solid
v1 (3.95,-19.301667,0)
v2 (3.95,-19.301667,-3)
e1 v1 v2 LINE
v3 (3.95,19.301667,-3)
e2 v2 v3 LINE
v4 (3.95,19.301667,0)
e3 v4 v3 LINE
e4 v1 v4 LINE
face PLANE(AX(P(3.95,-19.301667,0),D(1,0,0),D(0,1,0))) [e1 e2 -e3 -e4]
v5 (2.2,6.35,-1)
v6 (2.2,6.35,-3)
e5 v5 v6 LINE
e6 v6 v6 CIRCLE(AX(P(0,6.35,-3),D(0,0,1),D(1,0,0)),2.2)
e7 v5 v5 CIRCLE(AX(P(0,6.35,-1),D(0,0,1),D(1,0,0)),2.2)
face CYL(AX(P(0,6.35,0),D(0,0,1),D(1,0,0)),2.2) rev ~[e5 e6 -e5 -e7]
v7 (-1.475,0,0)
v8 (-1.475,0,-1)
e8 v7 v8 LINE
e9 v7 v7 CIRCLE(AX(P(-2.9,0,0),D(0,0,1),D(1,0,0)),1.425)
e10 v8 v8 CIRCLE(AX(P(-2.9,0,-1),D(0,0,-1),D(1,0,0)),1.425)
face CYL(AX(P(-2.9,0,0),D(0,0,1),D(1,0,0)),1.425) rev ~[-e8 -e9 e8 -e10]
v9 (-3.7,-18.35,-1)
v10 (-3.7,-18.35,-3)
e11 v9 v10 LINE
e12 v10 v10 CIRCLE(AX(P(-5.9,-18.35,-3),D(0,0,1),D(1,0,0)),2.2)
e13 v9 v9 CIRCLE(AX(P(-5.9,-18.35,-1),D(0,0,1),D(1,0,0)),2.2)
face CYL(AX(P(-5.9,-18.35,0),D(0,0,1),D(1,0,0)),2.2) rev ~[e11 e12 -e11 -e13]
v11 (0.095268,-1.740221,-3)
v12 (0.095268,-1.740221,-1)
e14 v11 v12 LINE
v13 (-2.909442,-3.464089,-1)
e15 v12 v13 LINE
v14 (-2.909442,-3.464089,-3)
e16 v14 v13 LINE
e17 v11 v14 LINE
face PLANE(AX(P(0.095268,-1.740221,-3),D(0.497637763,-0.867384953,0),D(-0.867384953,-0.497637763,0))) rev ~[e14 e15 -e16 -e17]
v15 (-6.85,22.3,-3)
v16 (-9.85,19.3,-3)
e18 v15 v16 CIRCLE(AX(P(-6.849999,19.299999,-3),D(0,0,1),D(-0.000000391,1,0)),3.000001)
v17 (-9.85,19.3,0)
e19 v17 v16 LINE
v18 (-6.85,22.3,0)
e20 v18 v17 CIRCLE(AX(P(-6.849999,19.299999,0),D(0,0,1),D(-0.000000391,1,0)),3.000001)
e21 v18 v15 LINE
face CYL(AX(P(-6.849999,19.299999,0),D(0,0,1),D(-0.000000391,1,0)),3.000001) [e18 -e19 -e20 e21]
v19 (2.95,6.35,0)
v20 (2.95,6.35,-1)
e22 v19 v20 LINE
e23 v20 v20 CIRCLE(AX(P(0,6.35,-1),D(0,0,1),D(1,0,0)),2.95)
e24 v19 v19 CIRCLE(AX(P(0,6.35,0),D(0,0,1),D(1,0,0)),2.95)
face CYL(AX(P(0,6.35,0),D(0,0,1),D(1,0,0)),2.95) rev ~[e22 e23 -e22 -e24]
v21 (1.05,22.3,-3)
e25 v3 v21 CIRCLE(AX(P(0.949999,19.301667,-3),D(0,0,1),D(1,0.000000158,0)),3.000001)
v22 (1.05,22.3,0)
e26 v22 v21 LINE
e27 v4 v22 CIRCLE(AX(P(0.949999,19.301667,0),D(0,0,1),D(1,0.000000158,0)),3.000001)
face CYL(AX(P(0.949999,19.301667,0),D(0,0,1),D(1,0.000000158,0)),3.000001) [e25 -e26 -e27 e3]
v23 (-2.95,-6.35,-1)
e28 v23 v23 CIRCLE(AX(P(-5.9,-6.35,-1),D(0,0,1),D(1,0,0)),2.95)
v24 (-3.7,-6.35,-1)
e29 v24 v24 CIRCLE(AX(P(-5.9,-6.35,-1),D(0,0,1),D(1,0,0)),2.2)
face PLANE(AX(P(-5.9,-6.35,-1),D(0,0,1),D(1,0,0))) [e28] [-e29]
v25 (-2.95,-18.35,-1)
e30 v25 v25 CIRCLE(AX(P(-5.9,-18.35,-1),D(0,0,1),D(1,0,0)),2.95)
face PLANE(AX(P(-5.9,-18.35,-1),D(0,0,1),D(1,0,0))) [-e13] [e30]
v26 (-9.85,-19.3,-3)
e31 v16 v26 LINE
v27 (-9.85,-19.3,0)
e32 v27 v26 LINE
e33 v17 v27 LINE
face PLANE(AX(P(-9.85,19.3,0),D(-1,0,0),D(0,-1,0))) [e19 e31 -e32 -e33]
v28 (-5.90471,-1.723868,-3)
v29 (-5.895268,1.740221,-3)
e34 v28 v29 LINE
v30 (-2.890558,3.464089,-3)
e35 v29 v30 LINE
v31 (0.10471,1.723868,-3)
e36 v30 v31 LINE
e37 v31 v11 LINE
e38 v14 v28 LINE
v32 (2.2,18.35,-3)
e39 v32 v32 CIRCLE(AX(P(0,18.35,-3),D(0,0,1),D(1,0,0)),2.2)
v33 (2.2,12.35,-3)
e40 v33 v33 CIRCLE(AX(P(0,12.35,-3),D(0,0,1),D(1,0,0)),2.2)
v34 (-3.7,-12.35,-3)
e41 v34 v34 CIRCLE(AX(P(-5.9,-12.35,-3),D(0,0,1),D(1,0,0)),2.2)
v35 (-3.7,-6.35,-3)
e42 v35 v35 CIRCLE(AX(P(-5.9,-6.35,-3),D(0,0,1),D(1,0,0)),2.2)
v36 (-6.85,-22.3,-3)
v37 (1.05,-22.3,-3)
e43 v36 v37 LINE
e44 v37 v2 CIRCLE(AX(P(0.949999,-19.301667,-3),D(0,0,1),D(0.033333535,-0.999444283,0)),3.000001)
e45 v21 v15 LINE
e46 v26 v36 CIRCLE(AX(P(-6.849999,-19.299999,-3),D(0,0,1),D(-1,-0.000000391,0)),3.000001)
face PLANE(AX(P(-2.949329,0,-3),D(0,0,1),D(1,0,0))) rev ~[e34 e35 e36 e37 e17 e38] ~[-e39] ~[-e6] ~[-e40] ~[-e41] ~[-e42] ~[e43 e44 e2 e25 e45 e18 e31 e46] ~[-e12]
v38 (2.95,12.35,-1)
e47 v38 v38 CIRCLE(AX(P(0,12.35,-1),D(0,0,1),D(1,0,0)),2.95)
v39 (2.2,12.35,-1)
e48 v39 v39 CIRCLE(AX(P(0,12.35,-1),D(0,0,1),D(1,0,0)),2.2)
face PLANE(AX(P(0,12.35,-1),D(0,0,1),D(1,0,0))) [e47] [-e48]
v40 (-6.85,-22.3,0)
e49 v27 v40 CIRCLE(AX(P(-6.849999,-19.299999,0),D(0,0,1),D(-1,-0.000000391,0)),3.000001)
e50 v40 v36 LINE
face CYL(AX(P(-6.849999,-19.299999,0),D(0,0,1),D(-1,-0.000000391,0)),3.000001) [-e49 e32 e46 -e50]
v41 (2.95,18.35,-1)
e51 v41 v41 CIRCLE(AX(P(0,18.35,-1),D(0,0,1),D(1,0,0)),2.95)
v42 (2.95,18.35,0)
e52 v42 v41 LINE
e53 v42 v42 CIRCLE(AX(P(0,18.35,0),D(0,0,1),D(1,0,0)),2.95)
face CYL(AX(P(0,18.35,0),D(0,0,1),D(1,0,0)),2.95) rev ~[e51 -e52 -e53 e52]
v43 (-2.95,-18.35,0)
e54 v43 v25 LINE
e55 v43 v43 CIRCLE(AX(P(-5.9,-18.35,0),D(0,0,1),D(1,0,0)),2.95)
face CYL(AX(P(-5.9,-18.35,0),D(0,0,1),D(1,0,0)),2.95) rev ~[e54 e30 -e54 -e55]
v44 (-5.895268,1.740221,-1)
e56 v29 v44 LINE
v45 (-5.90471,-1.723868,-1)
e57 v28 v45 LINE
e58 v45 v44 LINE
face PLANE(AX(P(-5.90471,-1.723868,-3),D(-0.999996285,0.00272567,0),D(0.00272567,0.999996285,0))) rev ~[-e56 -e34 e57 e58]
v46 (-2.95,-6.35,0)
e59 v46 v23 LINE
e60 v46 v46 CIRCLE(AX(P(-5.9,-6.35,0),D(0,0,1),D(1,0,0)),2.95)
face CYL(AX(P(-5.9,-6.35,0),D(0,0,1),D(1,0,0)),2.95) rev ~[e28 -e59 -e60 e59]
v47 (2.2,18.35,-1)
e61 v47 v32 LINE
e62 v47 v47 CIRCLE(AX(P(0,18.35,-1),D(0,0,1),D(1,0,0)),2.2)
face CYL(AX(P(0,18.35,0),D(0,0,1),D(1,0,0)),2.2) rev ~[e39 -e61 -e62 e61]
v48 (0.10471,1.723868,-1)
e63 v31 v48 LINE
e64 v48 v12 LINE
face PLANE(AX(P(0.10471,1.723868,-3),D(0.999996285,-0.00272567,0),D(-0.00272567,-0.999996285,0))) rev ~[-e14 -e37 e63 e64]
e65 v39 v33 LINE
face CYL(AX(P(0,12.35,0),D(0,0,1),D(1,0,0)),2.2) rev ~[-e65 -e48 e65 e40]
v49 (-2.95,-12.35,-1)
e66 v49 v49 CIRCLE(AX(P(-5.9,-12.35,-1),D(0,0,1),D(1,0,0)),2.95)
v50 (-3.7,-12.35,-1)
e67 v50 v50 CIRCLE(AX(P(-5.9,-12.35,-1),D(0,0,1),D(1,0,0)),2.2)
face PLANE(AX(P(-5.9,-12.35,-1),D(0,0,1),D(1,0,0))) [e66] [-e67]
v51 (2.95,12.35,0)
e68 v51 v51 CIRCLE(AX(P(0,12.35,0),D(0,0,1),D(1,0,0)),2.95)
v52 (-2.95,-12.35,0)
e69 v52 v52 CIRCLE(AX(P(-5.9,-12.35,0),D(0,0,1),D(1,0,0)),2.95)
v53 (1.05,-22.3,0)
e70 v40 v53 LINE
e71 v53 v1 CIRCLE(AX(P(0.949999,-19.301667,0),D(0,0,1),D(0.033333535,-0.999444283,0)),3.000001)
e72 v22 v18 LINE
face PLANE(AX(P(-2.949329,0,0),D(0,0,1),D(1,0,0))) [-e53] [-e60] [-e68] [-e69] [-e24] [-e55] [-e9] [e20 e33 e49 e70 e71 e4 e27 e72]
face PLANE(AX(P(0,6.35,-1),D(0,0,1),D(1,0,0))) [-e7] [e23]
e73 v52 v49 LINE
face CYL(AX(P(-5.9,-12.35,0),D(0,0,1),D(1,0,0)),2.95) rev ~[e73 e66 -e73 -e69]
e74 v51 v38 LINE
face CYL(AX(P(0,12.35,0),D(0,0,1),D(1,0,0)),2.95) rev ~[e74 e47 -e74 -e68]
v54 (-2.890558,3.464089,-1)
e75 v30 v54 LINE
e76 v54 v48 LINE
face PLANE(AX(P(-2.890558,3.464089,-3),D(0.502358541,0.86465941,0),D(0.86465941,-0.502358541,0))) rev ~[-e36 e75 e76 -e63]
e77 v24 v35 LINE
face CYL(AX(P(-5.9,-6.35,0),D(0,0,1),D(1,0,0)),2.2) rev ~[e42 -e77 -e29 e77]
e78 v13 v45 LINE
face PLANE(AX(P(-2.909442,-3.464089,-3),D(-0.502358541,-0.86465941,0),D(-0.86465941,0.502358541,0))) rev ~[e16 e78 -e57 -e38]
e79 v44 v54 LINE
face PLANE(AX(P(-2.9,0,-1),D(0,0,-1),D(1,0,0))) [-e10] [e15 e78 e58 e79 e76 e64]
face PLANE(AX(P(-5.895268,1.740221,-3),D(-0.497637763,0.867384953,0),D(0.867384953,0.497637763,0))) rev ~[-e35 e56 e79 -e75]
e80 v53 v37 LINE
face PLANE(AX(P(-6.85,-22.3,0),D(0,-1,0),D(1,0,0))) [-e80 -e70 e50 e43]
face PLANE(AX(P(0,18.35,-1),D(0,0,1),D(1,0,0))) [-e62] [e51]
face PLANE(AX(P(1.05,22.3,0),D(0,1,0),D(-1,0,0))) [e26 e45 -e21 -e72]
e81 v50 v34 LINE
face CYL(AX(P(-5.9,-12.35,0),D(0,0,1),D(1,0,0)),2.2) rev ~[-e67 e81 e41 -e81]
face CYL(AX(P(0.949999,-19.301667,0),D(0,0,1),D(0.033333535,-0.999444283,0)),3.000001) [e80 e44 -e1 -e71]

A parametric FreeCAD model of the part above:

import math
import FreeCAD as App
import Part
import Sketcher

V = App.Vector

doc = App.newDocument("Part")
body = doc.addObject("PartDesign::Body", "Body")

# Sketch on XY plane
sketch1 = body.newObject("Sketcher::SketchObject", "Sketch")
sketch1.AttachmentSupport = (doc.getObject("XY_Plane"), [""])
sketch1.MapMode = "FlatFace"
sketch1.addGeometry([
    Part.LineSegment(V(3.95, -19.301667, 0), V(3.95, 19.301667, 0)),  # 0
    Part.ArcOfCircle(Part.Circle(V(0.949999, 19.301667, 0), V(0, 0, 1), 3.000001), math.radians(0.000009), math.radians(88.089775)),  # 1
    Part.LineSegment(V(1.05, 22.3, 0), V(-6.85, 22.3, 0)),  # 2
    Part.ArcOfCircle(Part.Circle(V(-6.849999, 19.299999, 0), V(0, 0, 1), 3.000001), math.radians(90.000022), math.radians(179.999978)),  # 3
    Part.LineSegment(V(-9.85, 19.3, 0), V(-9.85, -19.3, 0)),  # 4
    Part.ArcOfCircle(Part.Circle(V(-6.849999, -19.299999, 0), V(0, 0, 1), 3.000001), math.radians(-179.999978), math.radians(-90.000022)),  # 5
    Part.LineSegment(V(-6.85, -22.3, 0), V(1.05, -22.3, 0)),  # 6
    Part.ArcOfCircle(Part.Circle(V(0.949999, -19.301667, 0), V(0, 0, 1), 3.000001), math.radians(-88.089775), math.radians(-0.000009)),  # 7
    Part.Circle(V(-5.9, -18.35, 0), V(0, 0, 1), 2.2),  # 8
    Part.Circle(V(-5.9, -12.35, 0), V(0, 0, 1), 2.2),  # 9
    Part.Circle(V(-5.9, -6.35, 0), V(0, 0, 1), 2.2),  # 10
    Part.Circle(V(-2.9, 0, 0), V(0, 0, 1), 1.425),  # 11
    Part.Circle(V(0, 6.35, 0), V(0, 0, 1), 2.2),  # 12
    Part.Circle(V(0, 12.35, 0), V(0, 0, 1), 2.2),  # 13
    Part.Circle(V(0, 18.35, 0), V(0, 0, 1), 2.2),  # 14
], False)
sketch1.addConstraint([
    Sketcher.Constraint("Tangent", 0, 2, 1, 1),
    Sketcher.Constraint("Coincident", 1, 2, 2, 1),
    Sketcher.Constraint("Tangent", 2, 2, 3, 1),
    Sketcher.Constraint("Tangent", 3, 2, 4, 1),
    Sketcher.Constraint("Tangent", 4, 2, 5, 1),
    Sketcher.Constraint("Tangent", 5, 2, 6, 1),
    Sketcher.Constraint("Coincident", 6, 2, 7, 1),
    Sketcher.Constraint("Tangent", 7, 2, 0, 1),
    Sketcher.Constraint("Vertical", 0),
    Sketcher.Constraint("Horizontal", 2),
    Sketcher.Constraint("Vertical", 4),
    Sketcher.Constraint("Horizontal", 6),
    Sketcher.Constraint("Equal", 1, 3),
    Sketcher.Constraint("Equal", 3, 5),
    Sketcher.Constraint("Equal", 5, 7),
    Sketcher.Constraint("Equal", 8, 9),
    Sketcher.Constraint("Equal", 9, 10),
    Sketcher.Constraint("Equal", 10, 12),
    Sketcher.Constraint("Equal", 12, 13),
    Sketcher.Constraint("Equal", 13, 14),
    Sketcher.Constraint("Symmetric", 1, 2, 6, 2, -1),
    Sketcher.Constraint("PointOnObject", 11, 3, -1),
    Sketcher.Constraint("PointOnObject", 12, 3, -2),
    Sketcher.Constraint("PointOnObject", 13, 3, -2),
    Sketcher.Constraint("PointOnObject", 14, 3, -2),
    Sketcher.Constraint("Vertical", 8, 3, 9, 3),
    Sketcher.Constraint("Vertical", 9, 3, 10, 3),
    Sketcher.Constraint("Radius", 1, 3.000001),
    Sketcher.Constraint("Diameter", 8, 4.4),
    Sketcher.Constraint("Diameter", 11, 2.85),
    Sketcher.Constraint("DistanceX", 2, 2, 2, 1, 7.9),
    Sketcher.Constraint("DistanceY", 4, 2, 4, 1, 38.6),
    Sketcher.Constraint("DistanceY", 8, 3, 9, 3, 6.0),
    Sketcher.Constraint("DistanceY", 9, 3, 10, 3, 6.0),
    Sketcher.Constraint("DistanceX", 10, 3, 11, 3, 3.0),
    Sketcher.Constraint("DistanceY", 12, 3, 13, 3, 6.0),
    Sketcher.Constraint("DistanceY", 13, 3, 14, 3, 6.0),
    Sketcher.Constraint("DistanceX", 8, 3, -1, 1, 5.9),
    Sketcher.Constraint("DistanceX", 3, 3, 1, 3, 7.799998),
    Sketcher.Constraint("DistanceY", 10, 3, 12, 3, 12.7),
    Sketcher.Constraint("DistanceX", -1, 1, 1, 3, 0.949999),
    Sketcher.Constraint("DistanceY", 8, 3, -1, 1, 18.35),
])
pad1 = body.newObject("PartDesign::Pad", "Pad")
pad1.Profile = sketch1
pad1.Length = 3
pad1.Reversed = True

# Sketch on XY plane
sketch2 = body.newObject("Sketcher::SketchObject", "Sketch001")
sketch2.AttachmentSupport = (doc.getObject("XY_Plane"), [""])
sketch2.MapMode = "FlatFace"
sketch2.addGeometry([
    Part.Circle(V(-5.9, -6.35, 0), V(0, 0, 1), 2.95),  # 0
    Part.Circle(V(-5.9, -6.35, 0), V(0, 0, 1), 2.2),  # 1
    Part.Circle(V(-5.9, -12.35, 0), V(0, 0, 1), 2.95),  # 2
    Part.Circle(V(-5.9, -12.35, 0), V(0, 0, 1), 2.2),  # 3
    Part.Circle(V(-5.9, -18.35, 0), V(0, 0, 1), 2.95),  # 4
    Part.Circle(V(-5.9, -18.35, 0), V(0, 0, 1), 2.2),  # 5
    Part.Circle(V(0, 18.35, 0), V(0, 0, 1), 2.95),  # 6
    Part.Circle(V(0, 18.35, 0), V(0, 0, 1), 2.2),  # 7
    Part.Circle(V(0, 12.35, 0), V(0, 0, 1), 2.95),  # 8
    Part.Circle(V(0, 12.35, 0), V(0, 0, 1), 2.2),  # 9
    Part.Circle(V(0, 6.35, 0), V(0, 0, 1), 2.95),  # 10
    Part.Circle(V(0, 6.35, 0), V(0, 0, 1), 2.2),  # 11
], False)
sketch2.addConstraint([
    Sketcher.Constraint("Coincident", 1, 3, 0, 3),
    Sketcher.Constraint("Coincident", 3, 3, 2, 3),
    Sketcher.Constraint("Coincident", 5, 3, 4, 3),
    Sketcher.Constraint("Coincident", 7, 3, 6, 3),
    Sketcher.Constraint("Coincident", 9, 3, 8, 3),
    Sketcher.Constraint("Coincident", 11, 3, 10, 3),
    Sketcher.Constraint("Equal", 0, 2),
    Sketcher.Constraint("Equal", 1, 3),
    Sketcher.Constraint("Equal", 2, 4),
    Sketcher.Constraint("Equal", 3, 5),
    Sketcher.Constraint("Equal", 4, 6),
    Sketcher.Constraint("Equal", 5, 7),
    Sketcher.Constraint("Equal", 6, 8),
    Sketcher.Constraint("Equal", 7, 9),
    Sketcher.Constraint("Equal", 8, 10),
    Sketcher.Constraint("Equal", 9, 11),
    Sketcher.Constraint("PointOnObject", 6, 3, -2),
    Sketcher.Constraint("PointOnObject", 8, 3, -2),
    Sketcher.Constraint("PointOnObject", 10, 3, -2),
    Sketcher.Constraint("Vertical", 1, 3, 2, 3),
    Sketcher.Constraint("Vertical", 3, 3, 4, 3),
    Sketcher.Constraint("Diameter", 0, 5.9),
    Sketcher.Constraint("Diameter", 1, 4.4),
    Sketcher.Constraint("DistanceY", 2, 3, 0, 3, 6.0),
    Sketcher.Constraint("DistanceY", 4, 3, 2, 3, 6.0),
    Sketcher.Constraint("DistanceY", 8, 3, 6, 3, 6.0),
    Sketcher.Constraint("DistanceY", 10, 3, 8, 3, 6.0),
    Sketcher.Constraint("DistanceX", 0, 3, -1, 1, 5.9),
    Sketcher.Constraint("DistanceY", 0, 3, 6, 3, 24.7),
    Sketcher.Constraint("DistanceY", 0, 3, -1, 1, 6.35),
])
pocket1 = body.newObject("PartDesign::Pocket", "Pocket")
pocket1.Profile = sketch2
pocket1.Length = 1

# Sketch on XY plane
sketch3 = body.newObject("Sketcher::SketchObject", "Sketch002")
sketch3.AttachmentSupport = (doc.getObject("XY_Plane"), [""])
sketch3.MapMode = "FlatFace"
sketch3.AttachmentOffset = App.Placement(V(0, 0, -3), App.Rotation())
sketch3.addGeometry([
    Part.LineSegment(V(-2.890558, 3.464089, 0), V(0.10471, 1.723868, 0)),  # 0
    Part.LineSegment(V(0.10471, 1.723868, 0), V(0.095268, -1.740221, 0)),  # 1
    Part.LineSegment(V(0.095268, -1.740221, 0), V(-2.909442, -3.464089, 0)),  # 2
    Part.LineSegment(V(-2.909442, -3.464089, 0), V(-5.90471, -1.723868, 0)),  # 3
    Part.LineSegment(V(-5.90471, -1.723868, 0), V(-5.895268, 1.740221, 0)),  # 4
    Part.LineSegment(V(-5.895268, 1.740221, 0), V(-2.890558, 3.464089, 0)),  # 5
    Part.Circle(V(-2.9, 0, 0), V(0, 0, 1), 1.425),  # 6
], False)
sketch3.addConstraint([
    Sketcher.Constraint("Coincident", 0, 2, 1, 1),
    Sketcher.Constraint("Coincident", 1, 2, 2, 1),
    Sketcher.Constraint("Coincident", 2, 2, 3, 1),
    Sketcher.Constraint("Coincident", 3, 2, 4, 1),
    Sketcher.Constraint("Coincident", 4, 2, 5, 1),
    Sketcher.Constraint("Coincident", 5, 2, 0, 1),
    Sketcher.Constraint("PointOnObject", 6, 3, -1),
    Sketcher.Constraint("Parallel", 0, 3),
    Sketcher.Constraint("Parallel", 1, 4),
    Sketcher.Constraint("Parallel", 2, 5),
    Sketcher.Constraint("Equal", 0, 1),
    Sketcher.Constraint("Equal", 1, 2),
    Sketcher.Constraint("Equal", 2, 3),
    Sketcher.Constraint("Diameter", 6, 2.85),
    Sketcher.Constraint("DistanceX", 6, 3, -1, 1, 2.9),
    Sketcher.Constraint("Distance", 0, 3.464102),
    Sketcher.Constraint("DistanceX", -1, 1, 0, 2, 0.10471),
    Sketcher.Constraint("DistanceX", -1, 1, 1, 2, 0.095268),
    Sketcher.Constraint("DistanceY", 1, 2, -1, 1, 1.740221),
    Sketcher.Constraint("DistanceX", 2, 2, -1, 1, 2.909442),
    Sketcher.Constraint("DistanceX", 3, 2, -1, 1, 5.90471),
])
pocket2 = body.newObject("PartDesign::Pocket", "Pocket001")
pocket2.Profile = sketch3
pocket2.Length = 2
pocket2.Reversed = True

doc.recompute()
